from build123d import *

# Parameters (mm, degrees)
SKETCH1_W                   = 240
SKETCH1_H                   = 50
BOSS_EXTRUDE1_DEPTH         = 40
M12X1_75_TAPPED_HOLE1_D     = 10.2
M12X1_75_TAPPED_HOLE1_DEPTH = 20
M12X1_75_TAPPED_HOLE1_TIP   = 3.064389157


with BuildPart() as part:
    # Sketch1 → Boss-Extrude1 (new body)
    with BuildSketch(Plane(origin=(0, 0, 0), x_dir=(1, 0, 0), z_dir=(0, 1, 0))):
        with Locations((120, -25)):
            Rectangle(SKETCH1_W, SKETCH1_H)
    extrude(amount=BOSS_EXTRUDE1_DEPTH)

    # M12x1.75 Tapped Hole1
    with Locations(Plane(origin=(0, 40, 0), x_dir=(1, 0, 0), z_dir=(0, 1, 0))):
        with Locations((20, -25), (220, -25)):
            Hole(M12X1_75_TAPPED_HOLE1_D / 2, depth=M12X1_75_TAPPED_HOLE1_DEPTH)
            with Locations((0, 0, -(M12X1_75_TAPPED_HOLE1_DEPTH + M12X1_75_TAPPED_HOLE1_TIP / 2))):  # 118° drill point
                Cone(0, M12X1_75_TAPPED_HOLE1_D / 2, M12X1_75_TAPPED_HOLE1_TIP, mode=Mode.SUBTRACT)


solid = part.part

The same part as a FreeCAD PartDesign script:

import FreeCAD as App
import Part
import Sketcher
from FreeCAD import Vector

doc = App.newDocument("Part")
params = doc.addObject("Spreadsheet::Sheet", "Params")
for row, (alias, value) in enumerate([
    ("sketch1_width", "240 mm"),
    ("sketch1_height", "50 mm"),
    ("pad1_length", "40 mm"),
    ("sketch2_diameter", "10.2 mm"),
    ("hole_diameter", "10.2 mm"),
    ("hole_depth", "20 mm"),
], start=1):
    params.set(f"A{row}", alias)
    params.set(f"B{row}", "=" + value)
    params.setAlias(f"B{row}", alias)

body = doc.addObject("PartDesign::Body", "Body")

sketch1 = body.newObject("Sketcher::SketchObject", "Sketch")
sketch1.AttachmentSupport = (doc.getObject("XZ_Plane"), [""])
sketch1.MapMode = "FlatFace"
sketch1.addGeometry(Part.LineSegment(Vector(0, 0, 0), Vector(0, 50, 0)), False)
sketch1.addGeometry(Part.LineSegment(Vector(0, 50, 0), Vector(240, 50, 0)), False)
sketch1.addGeometry(Part.LineSegment(Vector(240, 50, 0), Vector(240, 0, 0)), False)
sketch1.addGeometry(Part.LineSegment(Vector(240, 0, 0), Vector(0, 0, 0)), False)
sketch1.addConstraint(Sketcher.Constraint("Coincident", 0, 2, 1, 1))
sketch1.addConstraint(Sketcher.Constraint("Coincident", 1, 2, 2, 1))
sketch1.addConstraint(Sketcher.Constraint("Coincident", 2, 2, 3, 1))
sketch1.addConstraint(Sketcher.Constraint("Coincident", 3, 2, 0, 1))
sketch1.addConstraint(Sketcher.Constraint("Vertical", 0))
sketch1.addConstraint(Sketcher.Constraint("Horizontal", 1))
sketch1.addConstraint(Sketcher.Constraint("Vertical", 2))
sketch1.addConstraint(Sketcher.Constraint("Horizontal", 3))
sketch1.addConstraint(Sketcher.Constraint("Coincident", 3, 2, -1, 1))
sketch1.addConstraint(Sketcher.Constraint("DistanceX", 1, 1, 1, 2, 240.0))
sketch1.addConstraint(Sketcher.Constraint("DistanceY", 0, 1, 0, 2, 50.0))
sketch1.setExpression("Constraints[9]", "Params.sketch1_width")
sketch1.setExpression("Constraints[10]", "Params.sketch1_height")
pad1 = body.newObject("PartDesign::Pad", "Pad")
pad1.Profile = sketch1
pad1.setExpression("Length", "Params.pad1_length")
pad1.Reversed = True

sketch2 = body.newObject("Sketcher::SketchObject", "Sketch001")
sketch2.AttachmentSupport = (doc.getObject("XZ_Plane"), [""])
sketch2.MapMode = "FlatFace"
sketch2.AttachmentOffset = App.Placement(Vector(0, 0, -40), App.Rotation())
sketch2.addGeometry(Part.Circle(Vector(20, 25, 0), Vector(0, 0, 1), 5), False)
sketch2.addGeometry(Part.Circle(Vector(220, 25, 0), Vector(0, 0, 1), 5), False)
sketch2.addConstraint(Sketcher.Constraint("Equal", 0, 1))
sketch2.addConstraint(Sketcher.Constraint("Horizontal", 0, 3, 1, 3))
sketch2.addConstraint(Sketcher.Constraint("Diameter", 0, 10.2))
sketch2.addConstraint(Sketcher.Constraint("DistanceX", -1, 1, 0, 3, 20.0))
sketch2.addConstraint(Sketcher.Constraint("DistanceY", -1, 1, 0, 3, 25.0))
sketch2.addConstraint(Sketcher.Constraint("DistanceX", -1, 1, 1, 3, 220.0))
sketch2.setExpression("Constraints[2]", "Params.sketch2_diameter")
doc.recompute()
hole = body.newObject("PartDesign::Hole", "Hole")
hole.Profile = sketch2
hole.ThreadType = "None"
hole.setExpression("Diameter", "Params.hole_diameter")
hole.DepthType = "Dimension"
hole.setExpression("Depth", "Params.hole_depth")
hole.DrillPoint = "Angled"
hole.DrillPointAngle = 118
hole.Reversed = True

doc.recompute()
